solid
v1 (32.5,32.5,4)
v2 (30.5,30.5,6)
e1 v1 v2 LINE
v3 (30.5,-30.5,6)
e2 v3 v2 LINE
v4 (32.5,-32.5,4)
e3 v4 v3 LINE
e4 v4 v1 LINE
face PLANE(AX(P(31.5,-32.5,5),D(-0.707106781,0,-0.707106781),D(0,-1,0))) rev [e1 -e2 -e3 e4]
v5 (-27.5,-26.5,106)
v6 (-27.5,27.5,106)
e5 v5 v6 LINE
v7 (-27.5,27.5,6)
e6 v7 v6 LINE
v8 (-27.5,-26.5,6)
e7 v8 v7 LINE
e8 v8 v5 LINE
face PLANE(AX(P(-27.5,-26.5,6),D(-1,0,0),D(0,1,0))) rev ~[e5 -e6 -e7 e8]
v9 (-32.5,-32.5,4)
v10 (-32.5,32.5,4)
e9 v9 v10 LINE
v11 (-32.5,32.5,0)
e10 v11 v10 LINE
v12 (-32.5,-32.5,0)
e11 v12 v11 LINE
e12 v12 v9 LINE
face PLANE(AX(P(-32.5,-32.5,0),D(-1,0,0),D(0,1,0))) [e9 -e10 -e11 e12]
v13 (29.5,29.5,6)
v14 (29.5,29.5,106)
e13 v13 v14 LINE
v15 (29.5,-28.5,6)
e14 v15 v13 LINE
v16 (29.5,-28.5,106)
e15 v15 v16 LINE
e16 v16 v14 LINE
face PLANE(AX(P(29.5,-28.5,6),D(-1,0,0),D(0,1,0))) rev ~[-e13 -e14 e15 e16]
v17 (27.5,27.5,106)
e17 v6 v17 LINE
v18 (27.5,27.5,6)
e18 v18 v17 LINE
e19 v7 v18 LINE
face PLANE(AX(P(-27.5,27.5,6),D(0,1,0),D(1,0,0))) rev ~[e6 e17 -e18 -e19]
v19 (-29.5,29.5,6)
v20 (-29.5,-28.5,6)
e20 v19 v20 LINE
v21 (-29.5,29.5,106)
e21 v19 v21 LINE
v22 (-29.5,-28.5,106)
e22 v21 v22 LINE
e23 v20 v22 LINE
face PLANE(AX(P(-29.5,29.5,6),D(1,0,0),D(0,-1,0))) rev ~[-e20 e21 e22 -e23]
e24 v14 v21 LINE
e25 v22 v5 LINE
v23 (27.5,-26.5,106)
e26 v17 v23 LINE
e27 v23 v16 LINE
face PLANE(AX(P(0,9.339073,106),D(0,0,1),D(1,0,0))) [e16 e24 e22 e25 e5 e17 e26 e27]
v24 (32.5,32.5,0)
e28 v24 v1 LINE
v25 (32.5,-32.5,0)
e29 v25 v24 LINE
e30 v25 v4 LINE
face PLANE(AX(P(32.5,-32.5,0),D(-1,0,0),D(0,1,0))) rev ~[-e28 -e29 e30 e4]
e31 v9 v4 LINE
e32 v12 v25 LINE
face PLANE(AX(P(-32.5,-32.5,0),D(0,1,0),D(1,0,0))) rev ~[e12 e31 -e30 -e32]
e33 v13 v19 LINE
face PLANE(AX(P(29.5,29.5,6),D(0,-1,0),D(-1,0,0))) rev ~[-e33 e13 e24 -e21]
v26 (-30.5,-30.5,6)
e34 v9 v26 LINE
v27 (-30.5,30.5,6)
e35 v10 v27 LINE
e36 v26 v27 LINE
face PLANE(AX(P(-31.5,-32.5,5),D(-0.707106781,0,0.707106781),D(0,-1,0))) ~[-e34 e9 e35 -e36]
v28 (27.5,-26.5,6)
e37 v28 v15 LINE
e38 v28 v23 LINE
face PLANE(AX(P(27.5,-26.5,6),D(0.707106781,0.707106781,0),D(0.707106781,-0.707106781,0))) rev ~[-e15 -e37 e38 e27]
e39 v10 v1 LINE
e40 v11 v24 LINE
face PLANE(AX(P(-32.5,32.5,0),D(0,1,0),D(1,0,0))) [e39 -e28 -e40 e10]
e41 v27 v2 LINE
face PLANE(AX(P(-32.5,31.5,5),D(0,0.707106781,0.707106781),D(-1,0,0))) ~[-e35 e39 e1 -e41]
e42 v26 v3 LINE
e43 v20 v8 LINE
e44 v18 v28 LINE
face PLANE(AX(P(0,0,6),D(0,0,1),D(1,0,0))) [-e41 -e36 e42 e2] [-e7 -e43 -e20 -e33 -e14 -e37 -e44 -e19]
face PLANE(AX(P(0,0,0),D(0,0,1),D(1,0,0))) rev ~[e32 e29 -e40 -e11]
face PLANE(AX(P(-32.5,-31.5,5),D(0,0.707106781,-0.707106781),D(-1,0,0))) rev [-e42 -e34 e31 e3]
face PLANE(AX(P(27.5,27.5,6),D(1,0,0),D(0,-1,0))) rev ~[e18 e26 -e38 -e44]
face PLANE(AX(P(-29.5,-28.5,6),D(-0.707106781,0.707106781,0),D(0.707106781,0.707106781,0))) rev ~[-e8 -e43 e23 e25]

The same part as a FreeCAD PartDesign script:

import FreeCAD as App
import Part
import Sketcher

V = App.Vector


def edges_at(feature, points):
    """Names of the edges that pass closest to the given points."""
    edges = feature.Shape.Edges
    near = lambda p: min(range(len(edges)), key=lambda i: edges[i].distToShape(Part.Vertex(*p))[0])
    return sorted({f"Edge{near(p) + 1}" for p in points})


def add_polygon(sketch, points):
    """Adds a closed chain of lines whose ends are joined by coincident constraints."""
    first, n = sketch.GeometryCount, len(points)
    for a, b in zip(points, points[1:] + points[:1]):
        sketch.addGeometry(Part.LineSegment(App.Vector(*a, 0), App.Vector(*b, 0)), False)
    for i in range(n):
        sketch.addConstraint(Sketcher.Constraint("Coincident", first + i, 2, first + (i + 1) % n, 1))

doc = App.newDocument("Part")
params = doc.addObject("Spreadsheet::Sheet", "Params")
for row, (alias, value) in enumerate([
    ("sketch1_width", "65 mm"),
    ("pad1_length", "6 mm"),
    ("chamfer_size", "2 mm"),
    ("sketch2_width", "59 mm"),
    ("sketch2_width2", "55 mm"),
    ("sketch2_height", "58 mm"),
    ("sketch2_height2", "54 mm"),
    ("pad2_length", "100 mm"),
], start=1):
    params.set(f"A{row}", alias)
    params.set(f"B{row}", "=" + value)
    params.setAlias(f"B{row}", alias)

body = doc.addObject("PartDesign::Body", "Body")

# Sketch on XY plane
sketch1 = doc.addObject("Sketcher::SketchObject", "Sketch")
body.addObject(sketch1)
sketch1.AttachmentSupport = (doc.XY_Plane, [""])
sketch1.MapMode = "FlatFace"
add_polygon(sketch1, [(-32.5, 32.5), (-32.5, -32.5), (32.5, -32.5), (32.5, 32.5)])  # lines 0-3
sketch1.addConstraint(Sketcher.Constraint("Vertical", 0))
sketch1.addConstraint(Sketcher.Constraint("Horizontal", 1))
sketch1.addConstraint(Sketcher.Constraint("Vertical", 2))
sketch1.addConstraint(Sketcher.Constraint("Horizontal", 3))
sketch1.addConstraint(Sketcher.Constraint("Symmetric", 0, 2, 2, 2, -1, 1))
sketch1.addConstraint(Sketcher.Constraint("Equal", 3, 0))
sketch1.addConstraint(Sketcher.Constraint("DistanceX", 1, 1, 1, 2, 65.0))
sketch1.setExpression("Constraints[10]", "Params.sketch1_width")
pad1 = doc.addObject("PartDesign::Pad", "Pad")
body.addObject(pad1)
pad1.Profile = sketch1
pad1.setExpression("Length", "Params.pad1_length")
doc.recompute()

chamfer = doc.addObject("PartDesign::Chamfer", "Chamfer")
body.addObject(chamfer)
chamfer.Base = (pad1, edges_at(pad1, [
    (0, -32.5, 6),
    (32.5, 0, 6),
    (0, 32.5, 6),
    (-32.5, 0, 6),
]))
chamfer.setExpression("Size", "Params.chamfer_size")

# Sketch on XY plane
sketch2 = doc.addObject("Sketcher::SketchObject", "Sketch001")
body.addObject(sketch2)
sketch2.AttachmentSupport = (doc.XY_Plane, [""])
sketch2.MapMode = "FlatFace"
sketch2.AttachmentOffset = App.Placement(V(0, 0, 6), App.Rotation())
add_polygon(sketch2, [(27.5, -26.5), (29.5, -28.5), (29.5, 29.5), (-29.5, 29.5), (-29.5, -28.5), (-27.5, -26.5), (-27.5, 27.5), (27.5, 27.5)])  # lines 0-7
sketch2.addConstraint(Sketcher.Constraint("Vertical", 1))
sketch2.addConstraint(Sketcher.Constraint("Horizontal", 2))
sketch2.addConstraint(Sketcher.Constraint("Vertical", 3))
sketch2.addConstraint(Sketcher.Constraint("Vertical", 5))
sketch2.addConstraint(Sketcher.Constraint("Horizontal", 6))
sketch2.addConstraint(Sketcher.Constraint("Vertical", 7))
sketch2.addConstraint(Sketcher.Constraint("Symmetric", 0, 2, 3, 2, -2))
sketch2.addConstraint(Sketcher.Constraint("Symmetric", 4, 2, 7, 2, -2))
sketch2.addConstraint(Sketcher.Constraint("Perpendicular", 0, 4))
sketch2.addConstraint(Sketcher.Constraint("DistanceX", 2, 2, 2, 1, 59.0))
sketch2.addConstraint(Sketcher.Constraint("DistanceX", 6, 1, 6, 2, 55.0))
sketch2.addConstraint(Sketcher.Constraint("DistanceY", 1, 1, 1, 2, 58.0))
sketch2.addConstraint(Sketcher.Constraint("DistanceY", 5, 1, 5, 2, 54.0))
sketch2.addConstraint(Sketcher.Constraint("DistanceY", 0, 2, -1, 1, 28.5))
sketch2.setExpression("Constraints[17]", "Params.sketch2_width")
sketch2.setExpression("Constraints[18]", "Params.sketch2_width2")
sketch2.setExpression("Constraints[19]", "Params.sketch2_height")
sketch2.setExpression("Constraints[20]", "Params.sketch2_height2")
pad2 = doc.addObject("PartDesign::Pad", "Pad001")
body.addObject(pad2)
pad2.Profile = sketch2
pad2.setExpression("Length", "Params.pad2_length")

doc.recompute()
